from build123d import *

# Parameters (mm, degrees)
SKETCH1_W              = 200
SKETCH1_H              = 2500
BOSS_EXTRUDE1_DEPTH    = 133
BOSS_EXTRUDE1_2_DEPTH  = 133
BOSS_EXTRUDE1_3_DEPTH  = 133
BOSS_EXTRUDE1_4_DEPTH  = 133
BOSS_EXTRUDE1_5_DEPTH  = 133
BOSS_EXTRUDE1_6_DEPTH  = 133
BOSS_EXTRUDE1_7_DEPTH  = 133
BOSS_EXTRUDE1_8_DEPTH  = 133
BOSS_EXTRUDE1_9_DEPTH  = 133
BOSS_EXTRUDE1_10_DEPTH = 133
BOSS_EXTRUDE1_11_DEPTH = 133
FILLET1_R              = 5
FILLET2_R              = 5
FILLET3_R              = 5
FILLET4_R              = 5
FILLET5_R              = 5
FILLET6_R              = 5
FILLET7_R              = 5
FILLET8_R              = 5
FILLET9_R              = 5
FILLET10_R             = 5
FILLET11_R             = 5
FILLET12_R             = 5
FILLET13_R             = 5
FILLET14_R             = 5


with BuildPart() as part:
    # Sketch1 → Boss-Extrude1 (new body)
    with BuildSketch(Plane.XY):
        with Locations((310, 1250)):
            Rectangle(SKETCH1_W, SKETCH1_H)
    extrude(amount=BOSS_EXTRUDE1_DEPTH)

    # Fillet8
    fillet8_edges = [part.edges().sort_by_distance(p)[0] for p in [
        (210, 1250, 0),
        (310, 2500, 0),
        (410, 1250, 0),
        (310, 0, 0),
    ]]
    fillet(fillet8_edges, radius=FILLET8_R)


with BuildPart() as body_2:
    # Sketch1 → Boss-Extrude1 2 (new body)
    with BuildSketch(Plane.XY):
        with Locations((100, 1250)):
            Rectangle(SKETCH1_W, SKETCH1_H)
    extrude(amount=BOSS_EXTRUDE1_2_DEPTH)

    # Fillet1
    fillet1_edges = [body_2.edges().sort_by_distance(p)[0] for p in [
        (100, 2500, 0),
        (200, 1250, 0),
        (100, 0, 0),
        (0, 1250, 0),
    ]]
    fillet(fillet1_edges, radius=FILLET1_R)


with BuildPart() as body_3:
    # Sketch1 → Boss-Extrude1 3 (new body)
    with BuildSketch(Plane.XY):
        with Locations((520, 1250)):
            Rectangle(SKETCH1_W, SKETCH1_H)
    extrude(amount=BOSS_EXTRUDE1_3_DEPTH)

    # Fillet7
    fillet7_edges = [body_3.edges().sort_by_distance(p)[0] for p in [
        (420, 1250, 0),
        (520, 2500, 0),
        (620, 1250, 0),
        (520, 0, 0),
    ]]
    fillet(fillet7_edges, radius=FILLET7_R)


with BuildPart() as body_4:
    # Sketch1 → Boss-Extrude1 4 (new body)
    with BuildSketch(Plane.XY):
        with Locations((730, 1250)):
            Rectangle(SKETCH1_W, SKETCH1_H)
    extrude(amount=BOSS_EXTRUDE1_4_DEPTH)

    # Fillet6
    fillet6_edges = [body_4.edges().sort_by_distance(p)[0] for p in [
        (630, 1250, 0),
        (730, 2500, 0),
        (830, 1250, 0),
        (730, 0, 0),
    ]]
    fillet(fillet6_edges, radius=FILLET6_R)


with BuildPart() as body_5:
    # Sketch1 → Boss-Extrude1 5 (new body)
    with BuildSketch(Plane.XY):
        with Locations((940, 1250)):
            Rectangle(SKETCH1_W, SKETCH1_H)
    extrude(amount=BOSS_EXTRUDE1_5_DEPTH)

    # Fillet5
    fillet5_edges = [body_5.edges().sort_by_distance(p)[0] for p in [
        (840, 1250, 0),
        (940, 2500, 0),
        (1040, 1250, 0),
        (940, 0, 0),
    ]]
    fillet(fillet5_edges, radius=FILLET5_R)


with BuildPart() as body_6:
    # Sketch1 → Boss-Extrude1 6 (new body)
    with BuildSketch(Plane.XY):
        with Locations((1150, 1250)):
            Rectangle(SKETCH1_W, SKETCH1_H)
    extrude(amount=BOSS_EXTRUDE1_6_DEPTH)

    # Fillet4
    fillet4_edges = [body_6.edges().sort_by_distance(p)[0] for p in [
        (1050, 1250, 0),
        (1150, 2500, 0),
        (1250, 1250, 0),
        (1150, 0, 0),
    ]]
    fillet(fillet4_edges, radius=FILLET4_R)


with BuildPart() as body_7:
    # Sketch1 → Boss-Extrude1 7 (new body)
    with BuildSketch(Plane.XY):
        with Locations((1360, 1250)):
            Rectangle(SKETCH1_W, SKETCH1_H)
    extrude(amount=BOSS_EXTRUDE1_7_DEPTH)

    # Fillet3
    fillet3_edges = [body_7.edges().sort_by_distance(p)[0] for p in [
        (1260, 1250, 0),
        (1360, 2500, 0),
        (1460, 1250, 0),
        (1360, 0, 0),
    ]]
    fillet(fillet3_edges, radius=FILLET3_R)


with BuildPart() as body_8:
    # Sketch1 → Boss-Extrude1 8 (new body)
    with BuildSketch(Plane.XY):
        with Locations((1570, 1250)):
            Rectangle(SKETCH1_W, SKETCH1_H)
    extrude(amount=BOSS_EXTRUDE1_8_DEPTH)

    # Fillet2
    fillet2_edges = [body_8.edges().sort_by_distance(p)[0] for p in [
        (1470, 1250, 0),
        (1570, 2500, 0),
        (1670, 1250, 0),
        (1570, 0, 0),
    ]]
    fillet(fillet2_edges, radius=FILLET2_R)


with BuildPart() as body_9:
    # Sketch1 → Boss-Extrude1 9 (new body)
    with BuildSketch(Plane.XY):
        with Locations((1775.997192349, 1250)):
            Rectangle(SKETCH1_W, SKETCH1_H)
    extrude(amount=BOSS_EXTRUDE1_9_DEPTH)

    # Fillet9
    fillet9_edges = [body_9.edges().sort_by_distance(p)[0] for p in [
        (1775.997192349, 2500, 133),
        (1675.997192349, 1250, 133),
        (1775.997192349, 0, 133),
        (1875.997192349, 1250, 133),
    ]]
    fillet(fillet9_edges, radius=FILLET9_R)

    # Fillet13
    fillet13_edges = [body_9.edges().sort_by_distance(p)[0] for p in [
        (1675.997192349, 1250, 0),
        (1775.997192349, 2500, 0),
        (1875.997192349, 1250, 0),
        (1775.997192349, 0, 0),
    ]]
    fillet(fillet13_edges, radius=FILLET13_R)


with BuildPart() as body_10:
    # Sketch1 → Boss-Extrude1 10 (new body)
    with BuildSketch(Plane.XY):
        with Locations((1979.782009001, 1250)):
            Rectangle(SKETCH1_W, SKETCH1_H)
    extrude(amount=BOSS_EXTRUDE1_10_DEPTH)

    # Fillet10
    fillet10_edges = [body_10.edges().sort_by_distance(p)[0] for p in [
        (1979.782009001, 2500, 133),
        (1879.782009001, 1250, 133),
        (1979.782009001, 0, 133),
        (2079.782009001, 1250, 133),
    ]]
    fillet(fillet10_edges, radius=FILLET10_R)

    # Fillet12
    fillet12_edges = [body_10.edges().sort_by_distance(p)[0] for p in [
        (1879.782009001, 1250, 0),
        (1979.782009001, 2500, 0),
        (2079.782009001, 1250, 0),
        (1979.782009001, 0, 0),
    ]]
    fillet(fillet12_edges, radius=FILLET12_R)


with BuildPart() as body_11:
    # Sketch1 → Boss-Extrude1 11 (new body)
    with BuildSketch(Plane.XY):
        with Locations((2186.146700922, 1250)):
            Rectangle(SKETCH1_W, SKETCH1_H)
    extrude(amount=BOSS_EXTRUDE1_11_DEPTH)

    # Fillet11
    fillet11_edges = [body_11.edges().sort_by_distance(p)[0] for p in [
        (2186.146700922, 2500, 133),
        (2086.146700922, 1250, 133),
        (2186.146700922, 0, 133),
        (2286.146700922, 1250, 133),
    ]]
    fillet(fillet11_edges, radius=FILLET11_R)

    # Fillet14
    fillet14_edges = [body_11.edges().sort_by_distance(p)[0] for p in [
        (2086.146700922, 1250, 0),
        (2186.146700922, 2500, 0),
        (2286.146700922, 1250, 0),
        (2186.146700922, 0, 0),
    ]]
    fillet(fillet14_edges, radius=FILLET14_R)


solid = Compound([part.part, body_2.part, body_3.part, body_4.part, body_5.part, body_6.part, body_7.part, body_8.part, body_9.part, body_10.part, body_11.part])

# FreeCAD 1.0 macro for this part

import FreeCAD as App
import Part
import Sketcher


def edges_at(feature, points):
    """Names of the edges that pass closest to the given points."""
    edges = feature.Shape.Edges
    near = lambda p: min(range(len(edges)), key=lambda i: edges[i].distToShape(Part.Vertex(*p))[0])
    return sorted({f"Edge{near(p) + 1}" for p in points})

doc = App.newDocument("Part")
body = doc.addObject("PartDesign::Body", "Body")

sketch1 = body.newObject("Sketcher::SketchObject", "Sketch")
sketch1.AttachmentSupport = (doc.getObject("XY_Plane"), [""])
sketch1.MapMode = "FlatFace"
sketch1.addGeometry(Part.LineSegment(App.Vector(210, 2500, 0), App.Vector(210, 0, 0)), False)
sketch1.addGeometry(Part.LineSegment(App.Vector(210, 0, 0), App.Vector(410, 0, 0)), False)
sketch1.addGeometry(Part.LineSegment(App.Vector(410, 0, 0), App.Vector(410, 2500, 0)), False)
sketch1.addGeometry(Part.LineSegment(App.Vector(410, 2500, 0), App.Vector(210, 2500, 0)), False)
sketch1.addConstraint(Sketcher.Constraint("Coincident", 0, 2, 1, 1))
sketch1.addConstraint(Sketcher.Constraint("Coincident", 1, 2, 2, 1))
sketch1.addConstraint(Sketcher.Constraint("Coincident", 2, 2, 3, 1))
sketch1.addConstraint(Sketcher.Constraint("Coincident", 3, 2, 0, 1))
sketch1.addConstraint(Sketcher.Constraint("Vertical", 0))
sketch1.addConstraint(Sketcher.Constraint("Horizontal", 1))
sketch1.addConstraint(Sketcher.Constraint("Vertical", 2))
sketch1.addConstraint(Sketcher.Constraint("Horizontal", 3))
sketch1.addConstraint(Sketcher.Constraint("PointOnObject", 0, 2, -1))
sketch1.addConstraint(Sketcher.Constraint("DistanceX", 1, 1, 1, 2, 200.0))
sketch1.addConstraint(Sketcher.Constraint("DistanceY", 0, 2, 0, 1, 2500.0))
sketch1.addConstraint(Sketcher.Constraint("DistanceX", -1, 1, 0, 2, 210.0))
pad1 = body.newObject("PartDesign::Pad", "Pad")
pad1.Profile = sketch1
pad1.Length = 133
doc.recompute()

fillet = body.newObject("PartDesign::Fillet", "Fillet")
fillet.Base = (pad1, edges_at(pad1, [
    (210, 1250, 0),
    (310, 2500, 0),
    (410, 1250, 0),
    (310, 0, 0),
]))
fillet.Radius = 5
body2 = doc.addObject("PartDesign::Body", "Body001")

sketch2 = body2.newObject("Sketcher::SketchObject", "Sketch001")
sketch2.AttachmentSupport = (doc.getObject("XY_Plane001"), [""])
sketch2.MapMode = "FlatFace"
sketch2.addGeometry(Part.LineSegment(App.Vector(0, 2500, 0), App.Vector(0, 0, 0)), False)
sketch2.addGeometry(Part.LineSegment(App.Vector(0, 0, 0), App.Vector(200, 0, 0)), False)
sketch2.addGeometry(Part.LineSegment(App.Vector(200, 0, 0), App.Vector(200, 2500, 0)), False)
sketch2.addGeometry(Part.LineSegment(App.Vector(200, 2500, 0), App.Vector(0, 2500, 0)), False)
sketch2.addConstraint(Sketcher.Constraint("Coincident", 0, 2, 1, 1))
sketch2.addConstraint(Sketcher.Constraint("Coincident", 1, 2, 2, 1))
sketch2.addConstraint(Sketcher.Constraint("Coincident", 2, 2, 3, 1))
sketch2.addConstraint(Sketcher.Constraint("Coincident", 3, 2, 0, 1))
sketch2.addConstraint(Sketcher.Constraint("Vertical", 0))
sketch2.addConstraint(Sketcher.Constraint("Horizontal", 1))
sketch2.addConstraint(Sketcher.Constraint("Vertical", 2))
sketch2.addConstraint(Sketcher.Constraint("Horizontal", 3))
sketch2.addConstraint(Sketcher.Constraint("Coincident", 0, 2, -1, 1))
sketch2.addConstraint(Sketcher.Constraint("DistanceX", 1, 1, 1, 2, 200.0))
sketch2.addConstraint(Sketcher.Constraint("DistanceY", 0, 2, 0, 1, 2500.0))
pad2 = body2.newObject("PartDesign::Pad", "Pad001")
pad2.Profile = sketch2
pad2.Length = 133
doc.recompute()

fillet2 = body2.newObject("PartDesign::Fillet", "Fillet001")
fillet2.Base = (pad2, edges_at(pad2, [
    (100, 2500, 0),
    (200, 1250, 0),
    (100, 0, 0),
    (0, 1250, 0),
]))
fillet2.Radius = 5
body3 = doc.addObject("PartDesign::Body", "Body002")

sketch3 = body3.newObject("Sketcher::SketchObject", "Sketch002")
sketch3.AttachmentSupport = (doc.getObject("XY_Plane002"), [""])
sketch3.MapMode = "FlatFace"
sketch3.addGeometry(Part.LineSegment(App.Vector(420, 2500, 0), App.Vector(420, 0, 0)), False)
sketch3.addGeometry(Part.LineSegment(App.Vector(420, 0, 0), App.Vector(620, 0, 0)), False)
sketch3.addGeometry(Part.LineSegment(App.Vector(620, 0, 0), App.Vector(620, 2500, 0)), False)
sketch3.addGeometry(Part.LineSegment(App.Vector(620, 2500, 0), App.Vector(420, 2500, 0)), False)
sketch3.addConstraint(Sketcher.Constraint("Coincident", 0, 2, 1, 1))
sketch3.addConstraint(Sketcher.Constraint("Coincident", 1, 2, 2, 1))
sketch3.addConstraint(Sketcher.Constraint("Coincident", 2, 2, 3, 1))
sketch3.addConstraint(Sketcher.Constraint("Coincident", 3, 2, 0, 1))
sketch3.addConstraint(Sketcher.Constraint("Vertical", 0))
sketch3.addConstraint(Sketcher.Constraint("Horizontal", 1))
sketch3.addConstraint(Sketcher.Constraint("Vertical", 2))
sketch3.addConstraint(Sketcher.Constraint("Horizontal", 3))
sketch3.addConstraint(Sketcher.Constraint("PointOnObject", 0, 2, -1))
sketch3.addConstraint(Sketcher.Constraint("DistanceX", 1, 1, 1, 2, 200.0))
sketch3.addConstraint(Sketcher.Constraint("DistanceY", 0, 2, 0, 1, 2500.0))
sketch3.addConstraint(Sketcher.Constraint("DistanceX", -1, 1, 0, 2, 420.0))
pad3 = body3.newObject("PartDesign::Pad", "Pad002")
pad3.Profile = sketch3
pad3.Length = 133
doc.recompute()

fillet3 = body3.newObject("PartDesign::Fillet", "Fillet002")
fillet3.Base = (pad3, edges_at(pad3, [
    (420, 1250, 0),
    (520, 2500, 0),
    (620, 1250, 0),
    (520, 0, 0),
]))
fillet3.Radius = 5
body4 = doc.addObject("PartDesign::Body", "Body003")

sketch4 = body4.newObject("Sketcher::SketchObject", "Sketch003")
sketch4.AttachmentSupport = (doc.getObject("XY_Plane003"), [""])
sketch4.MapMode = "FlatFace"
sketch4.addGeometry(Part.LineSegment(App.Vector(630, 2500, 0), App.Vector(630, 0, 0)), False)
sketch4.addGeometry(Part.LineSegment(App.Vector(630, 0, 0), App.Vector(830, 0, 0)), False)
sketch4.addGeometry(Part.LineSegment(App.Vector(830, 0, 0), App.Vector(830, 2500, 0)), False)
sketch4.addGeometry(Part.LineSegment(App.Vector(830, 2500, 0), App.Vector(630, 2500, 0)), False)
sketch4.addConstraint(Sketcher.Constraint("Coincident", 0, 2, 1, 1))
sketch4.addConstraint(Sketcher.Constraint("Coincident", 1, 2, 2, 1))
sketch4.addConstraint(Sketcher.Constraint("Coincident", 2, 2, 3, 1))
sketch4.addConstraint(Sketcher.Constraint("Coincident", 3, 2, 0, 1))
sketch4.addConstraint(Sketcher.Constraint("Vertical", 0))
sketch4.addConstraint(Sketcher.Constraint("Horizontal", 1))
sketch4.addConstraint(Sketcher.Constraint("Vertical", 2))
sketch4.addConstraint(Sketcher.Constraint("Horizontal", 3))
sketch4.addConstraint(Sketcher.Constraint("PointOnObject", 0, 2, -1))
sketch4.addConstraint(Sketcher.Constraint("DistanceX", 1, 1, 1, 2, 200.0))
sketch4.addConstraint(Sketcher.Constraint("DistanceY", 0, 2, 0, 1, 2500.0))
sketch4.addConstraint(Sketcher.Constraint("DistanceX", -1, 1, 0, 2, 630.0))
pad4 = body4.newObject("PartDesign::Pad", "Pad003")
pad4.Profile = sketch4
pad4.Length = 133
doc.recompute()

fillet4 = body4.newObject("PartDesign::Fillet", "Fillet003")
fillet4.Base = (pad4, edges_at(pad4, [
    (630, 1250, 0),
    (730, 2500, 0),
    (830, 1250, 0),
    (730, 0, 0),
]))
fillet4.Radius = 5
body5 = doc.addObject("PartDesign::Body", "Body004")

sketch5 = body5.newObject("Sketcher::SketchObject", "Sketch004")
sketch5.AttachmentSupport = (doc.getObject("XY_Plane004"), [""])
sketch5.MapMode = "FlatFace"
sketch5.addGeometry(Part.LineSegment(App.Vector(840, 2500, 0), App.Vector(840, 0, 0)), False)
sketch5.addGeometry(Part.LineSegment(App.Vector(840, 0, 0), App.Vector(1040, 0, 0)), False)
sketch5.addGeometry(Part.LineSegment(App.Vector(1040, 0, 0), App.Vector(1040, 2500, 0)), False)
sketch5.addGeometry(Part.LineSegment(App.Vector(1040, 2500, 0), App.Vector(840, 2500, 0)), False)
sketch5.addConstraint(Sketcher.Constraint("Coincident", 0, 2, 1, 1))
sketch5.addConstraint(Sketcher.Constraint("Coincident", 1, 2, 2, 1))
sketch5.addConstraint(Sketcher.Constraint("Coincident", 2, 2, 3, 1))
sketch5.addConstraint(Sketcher.Constraint("Coincident", 3, 2, 0, 1))
sketch5.addConstraint(Sketcher.Constraint("Vertical", 0))
sketch5.addConstraint(Sketcher.Constraint("Horizontal", 1))
sketch5.addConstraint(Sketcher.Constraint("Vertical", 2))
sketch5.addConstraint(Sketcher.Constraint("Horizontal", 3))
sketch5.addConstraint(Sketcher.Constraint("PointOnObject", 0, 2, -1))
sketch5.addConstraint(Sketcher.Constraint("DistanceX", 1, 1, 1, 2, 200.0))
sketch5.addConstraint(Sketcher.Constraint("DistanceY", 0, 2, 0, 1, 2500.0))
sketch5.addConstraint(Sketcher.Constraint("DistanceX", -1, 1, 0, 2, 840.0))
pad5 = body5.newObject("PartDesign::Pad", "Pad004")
pad5.Profile = sketch5
pad5.Length = 133
doc.recompute()

fillet5 = body5.newObject("PartDesign::Fillet", "Fillet004")
fillet5.Base = (pad5, edges_at(pad5, [
    (840, 1250, 0),
    (940, 2500, 0),
    (1040, 1250, 0),
    (940, 0, 0),
]))
fillet5.Radius = 5
body6 = doc.addObject("PartDesign::Body", "Body005")

sketch6 = body6.newObject("Sketcher::SketchObject", "Sketch005")
sketch6.AttachmentSupport = (doc.getObject("XY_Plane005"), [""])
sketch6.MapMode = "FlatFace"
sketch6.addGeometry(Part.LineSegment(App.Vector(1050, 2500, 0), App.Vector(1050, 0, 0)), False)
sketch6.addGeometry(Part.LineSegment(App.Vector(1050, 0, 0), App.Vector(1250, 0, 0)), False)
sketch6.addGeometry(Part.LineSegment(App.Vector(1250, 0, 0), App.Vector(1250, 2500, 0)), False)
sketch6.addGeometry(Part.LineSegment(App.Vector(1250, 2500, 0), App.Vector(1050, 2500, 0)), False)
sketch6.addConstraint(Sketcher.Constraint("Coincident", 0, 2, 1, 1))
sketch6.addConstraint(Sketcher.Constraint("Coincident", 1, 2, 2, 1))
sketch6.addConstraint(Sketcher.Constraint("Coincident", 2, 2, 3, 1))
sketch6.addConstraint(Sketcher.Constraint("Coincident", 3, 2, 0, 1))
sketch6.addConstraint(Sketcher.Constraint("Vertical", 0))
sketch6.addConstraint(Sketcher.Constraint("Horizontal", 1))
sketch6.addConstraint(Sketcher.Constraint("Vertical", 2))
sketch6.addConstraint(Sketcher.Constraint("Horizontal", 3))
sketch6.addConstraint(Sketcher.Constraint("PointOnObject", 0, 2, -1))
sketch6.addConstraint(Sketcher.Constraint("DistanceX", 1, 1, 1, 2, 200.0))
sketch6.addConstraint(Sketcher.Constraint("DistanceY", 0, 2, 0, 1, 2500.0))
sketch6.addConstraint(Sketcher.Constraint("DistanceX", -1, 1, 0, 2, 1050.0))
pad6 = body6.newObject("PartDesign::Pad", "Pad005")
pad6.Profile = sketch6
pad6.Length = 133
doc.recompute()

fillet6 = body6.newObject("PartDesign::Fillet", "Fillet005")
fillet6.Base = (pad6, edges_at(pad6, [
    (1050, 1250, 0),
    (1150, 2500, 0),
    (1250, 1250, 0),
    (1150, 0, 0),
]))
fillet6.Radius = 5
body7 = doc.addObject("PartDesign::Body", "Body006")

sketch7 = body7.newObject("Sketcher::SketchObject", "Sketch006")
sketch7.AttachmentSupport = (doc.getObject("XY_Plane006"), [""])
sketch7.MapMode = "FlatFace"
sketch7.addGeometry(Part.LineSegment(App.Vector(1260, 2500, 0), App.Vector(1260, 0, 0)), False)
sketch7.addGeometry(Part.LineSegment(App.Vector(1260, 0, 0), App.Vector(1460, 0, 0)), False)
sketch7.addGeometry(Part.LineSegment(App.Vector(1460, 0, 0), App.Vector(1460, 2500, 0)), False)
sketch7.addGeometry(Part.LineSegment(App.Vector(1460, 2500, 0), App.Vector(1260, 2500, 0)), False)
sketch7.addConstraint(Sketcher.Constraint("Coincident", 0, 2, 1, 1))
sketch7.addConstraint(Sketcher.Constraint("Coincident", 1, 2, 2, 1))
sketch7.addConstraint(Sketcher.Constraint("Coincident", 2, 2, 3, 1))
sketch7.addConstraint(Sketcher.Constraint("Coincident", 3, 2, 0, 1))
sketch7.addConstraint(Sketcher.Constraint("Vertical", 0))
sketch7.addConstraint(Sketcher.Constraint("Horizontal", 1))
sketch7.addConstraint(Sketcher.Constraint("Vertical", 2))
sketch7.addConstraint(Sketcher.Constraint("Horizontal", 3))
sketch7.addConstraint(Sketcher.Constraint("PointOnObject", 0, 2, -1))
sketch7.addConstraint(Sketcher.Constraint("DistanceX", 1, 1, 1, 2, 200.0))
sketch7.addConstraint(Sketcher.Constraint("DistanceY", 0, 2, 0, 1, 2500.0))
sketch7.addConstraint(Sketcher.Constraint("DistanceX", -1, 1, 0, 2, 1260.0))
pad7 = body7.newObject("PartDesign::Pad", "Pad006")
pad7.Profile = sketch7
pad7.Length = 133
doc.recompute()

fillet7 = body7.newObject("PartDesign::Fillet", "Fillet006")
fillet7.Base = (pad7, edges_at(pad7, [
    (1260, 1250, 0),
    (1360, 2500, 0),
    (1460, 1250, 0),
    (1360, 0, 0),
]))
fillet7.Radius = 5
body8 = doc.addObject("PartDesign::Body", "Body007")

sketch8 = body8.newObject("Sketcher::SketchObject", "Sketch007")
sketch8.AttachmentSupport = (doc.getObject("XY_Plane007"), [""])
sketch8.MapMode = "FlatFace"
sketch8.addGeometry(Part.LineSegment(App.Vector(1470, 2500, 0), App.Vector(1470, 0, 0)), False)
sketch8.addGeometry(Part.LineSegment(App.Vector(1470, 0, 0), App.Vector(1670, 0, 0)), False)
sketch8.addGeometry(Part.LineSegment(App.Vector(1670, 0, 0), App.Vector(1670, 2500, 0)), False)
sketch8.addGeometry(Part.LineSegment(App.Vector(1670, 2500, 0), App.Vector(1470, 2500, 0)), False)
sketch8.addConstraint(Sketcher.Constraint("Coincident", 0, 2, 1, 1))
sketch8.addConstraint(Sketcher.Constraint("Coincident", 1, 2, 2, 1))
sketch8.addConstraint(Sketcher.Constraint("Coincident", 2, 2, 3, 1))
sketch8.addConstraint(Sketcher.Constraint("Coincident", 3, 2, 0, 1))
sketch8.addConstraint(Sketcher.Constraint("Vertical", 0))
sketch8.addConstraint(Sketcher.Constraint("Horizontal", 1))
sketch8.addConstraint(Sketcher.Constraint("Vertical", 2))
sketch8.addConstraint(Sketcher.Constraint("Horizontal", 3))
sketch8.addConstraint(Sketcher.Constraint("PointOnObject", 0, 2, -1))
sketch8.addConstraint(Sketcher.Constraint("DistanceX", 1, 1, 1, 2, 200.0))
sketch8.addConstraint(Sketcher.Constraint("DistanceY", 0, 2, 0, 1, 2500.0))
sketch8.addConstraint(Sketcher.Constraint("DistanceX", -1, 1, 0, 2, 1470.0))
pad8 = body8.newObject("PartDesign::Pad", "Pad007")
pad8.Profile = sketch8
pad8.Length = 133
doc.recompute()

fillet8 = body8.newObject("PartDesign::Fillet", "Fillet007")
fillet8.Base = (pad8, edges_at(pad8, [
    (1470, 1250, 0),
    (1570, 2500, 0),
    (1670, 1250, 0),
    (1570, 0, 0),
]))
fillet8.Radius = 5
body9 = doc.addObject("PartDesign::Body", "Body008")

sketch9 = body9.newObject("Sketcher::SketchObject", "Sketch008")
sketch9.AttachmentSupport = (doc.getObject("XY_Plane008"), [""])
sketch9.MapMode = "FlatFace"
sketch9.addGeometry(Part.LineSegment(App.Vector(1675.997192, 2500, 0), App.Vector(1675.997192, 0, 0)), False)
sketch9.addGeometry(Part.LineSegment(App.Vector(1675.997192, 0, 0), App.Vector(1875.997192, 0, 0)), False)
sketch9.addGeometry(Part.LineSegment(App.Vector(1875.997192, 0, 0), App.Vector(1875.997192, 2500, 0)), False)
sketch9.addGeometry(Part.LineSegment(App.Vector(1875.997192, 2500, 0), App.Vector(1675.997192, 2500, 0)), False)
sketch9.addConstraint(Sketcher.Constraint("Coincident", 0, 2, 1, 1))
sketch9.addConstraint(Sketcher.Constraint("Coincident", 1, 2, 2, 1))
sketch9.addConstraint(Sketcher.Constraint("Coincident", 2, 2, 3, 1))
sketch9.addConstraint(Sketcher.Constraint("Coincident", 3, 2, 0, 1))
sketch9.addConstraint(Sketcher.Constraint("Vertical", 0))
sketch9.addConstraint(Sketcher.Constraint("Horizontal", 1))
sketch9.addConstraint(Sketcher.Constraint("Vertical", 2))
sketch9.addConstraint(Sketcher.Constraint("Horizontal", 3))
sketch9.addConstraint(Sketcher.Constraint("PointOnObject", 0, 2, -1))
sketch9.addConstraint(Sketcher.Constraint("DistanceX", 1, 1, 1, 2, 200.0))
sketch9.addConstraint(Sketcher.Constraint("DistanceY", 0, 2, 0, 1, 2500.0))
sketch9.addConstraint(Sketcher.Constraint("DistanceX", -1, 1, 0, 2, 1675.997192))
pad9 = body9.newObject("PartDesign::Pad", "Pad008")
pad9.Profile = sketch9
pad9.Length = 133
doc.recompute()

fillet9 = body9.newObject("PartDesign::Fillet", "Fillet008")
fillet9.Base = (pad9, edges_at(pad9, [
    (1775.997, 2500, 133),
    (1675.997, 1250, 133),
    (1775.997, 0, 133),
    (1875.997, 1250, 133),
]))
fillet9.Radius = 5
doc.recompute()

fillet10 = body9.newObject("PartDesign::Fillet", "Fillet009")
fillet10.Base = (fillet9, edges_at(fillet9, [
    (1675.997, 1250, 0),
    (1775.997, 2500, 0),
    (1875.997, 1250, 0),
    (1775.997, 0, 0),
]))
fillet10.Radius = 5
body10 = doc.addObject("PartDesign::Body", "Body009")

sketch10 = body10.newObject("Sketcher::SketchObject", "Sketch009")
sketch10.AttachmentSupport = (doc.getObject("XY_Plane009"), [""])
sketch10.MapMode = "FlatFace"
sketch10.addGeometry(Part.LineSegment(App.Vector(1880, 2500, 0), App.Vector(1880, 0, 0)), False)
sketch10.addGeometry(Part.LineSegment(App.Vector(1880, 0, 0), App.Vector(2080, 0, 0)), False)
sketch10.addGeometry(Part.LineSegment(App.Vector(2080, 0, 0), App.Vector(2080, 2500, 0)), False)
sketch10.addGeometry(Part.LineSegment(App.Vector(2080, 2500, 0), App.Vector(1880, 2500, 0)), False)
sketch10.addConstraint(Sketcher.Constraint("Coincident", 0, 2, 1, 1))
sketch10.addConstraint(Sketcher.Constraint("Coincident", 1, 2, 2, 1))
sketch10.addConstraint(Sketcher.Constraint("Coincident", 2, 2, 3, 1))
sketch10.addConstraint(Sketcher.Constraint("Coincident", 3, 2, 0, 1))
sketch10.addConstraint(Sketcher.Constraint("Vertical", 0))
sketch10.addConstraint(Sketcher.Constraint("Horizontal", 1))
sketch10.addConstraint(Sketcher.Constraint("Vertical", 2))
sketch10.addConstraint(Sketcher.Constraint("Horizontal", 3))
sketch10.addConstraint(Sketcher.Constraint("PointOnObject", 0, 2, -1))
sketch10.addConstraint(Sketcher.Constraint("DistanceX", 1, 1, 1, 2, 200.0))
sketch10.addConstraint(Sketcher.Constraint("DistanceY", 0, 2, 0, 1, 2500.0))
sketch10.addConstraint(Sketcher.Constraint("DistanceX", -1, 1, 0, 2, 1879.782009))
pad10 = body10.newObject("PartDesign::Pad", "Pad009")
pad10.Profile = sketch10
pad10.Length = 133
doc.recompute()

fillet11 = body10.newObject("PartDesign::Fillet", "Fillet010")
fillet11.Base = (pad10, edges_at(pad10, [
    (1979.782, 2500, 133),
    (1879.782, 1250, 133),
    (1979.782, 0, 133),
    (2079.782, 1250, 133),
]))
fillet11.Radius = 5
doc.recompute()

fillet12 = body10.newObject("PartDesign::Fillet", "Fillet011")
fillet12.Base = (fillet11, edges_at(fillet11, [
    (1879.782, 1250, 0),
    (1979.782, 2500, 0),
    (2079.782, 1250, 0),
    (1979.782, 0, 0),
]))
fillet12.Radius = 5
body11 = doc.addObject("PartDesign::Body", "Body010")

sketch11 = body11.newObject("Sketcher::SketchObject", "Sketch010")
sketch11.AttachmentSupport = (doc.getObject("XY_Plane010"), [""])
sketch11.MapMode = "FlatFace"
sketch11.addGeometry(Part.LineSegment(App.Vector(2086, 2500, 0), App.Vector(2086, 0, 0)), False)
sketch11.addGeometry(Part.LineSegment(App.Vector(2086, 0, 0), App.Vector(2286, 0, 0)), False)
sketch11.addGeometry(Part.LineSegment(App.Vector(2286, 0, 0), App.Vector(2286, 2500, 0)), False)
sketch11.addGeometry(Part.LineSegment(App.Vector(2286, 2500, 0), App.Vector(2086, 2500, 0)), False)
sketch11.addConstraint(Sketcher.Constraint("Coincident", 0, 2, 1, 1))
sketch11.addConstraint(Sketcher.Constraint("Coincident", 1, 2, 2, 1))
sketch11.addConstraint(Sketcher.Constraint("Coincident", 2, 2, 3, 1))
sketch11.addConstraint(Sketcher.Constraint("Coincident", 3, 2, 0, 1))
sketch11.addConstraint(Sketcher.Constraint("Vertical", 0))
sketch11.addConstraint(Sketcher.Constraint("Horizontal", 1))
sketch11.addConstraint(Sketcher.Constraint("Vertical", 2))
sketch11.addConstraint(Sketcher.Constraint("Horizontal", 3))
sketch11.addConstraint(Sketcher.Constraint("PointOnObject", 0, 2, -1))
sketch11.addConstraint(Sketcher.Constraint("DistanceX", 1, 1, 1, 2, 200.0))
sketch11.addConstraint(Sketcher.Constraint("DistanceY", 0, 2, 0, 1, 2500.0))
sketch11.addConstraint(Sketcher.Constraint("DistanceX", -1, 1, 0, 2, 2086.146701))
pad11 = body11.newObject("PartDesign::Pad", "Pad010")
pad11.Profile = sketch11
pad11.Length = 133
doc.recompute()

fillet13 = body11.newObject("PartDesign::Fillet", "Fillet012")
fillet13.Base = (pad11, edges_at(pad11, [
    (2186.147, 2500, 133),
    (2086.147, 1250, 133),
    (2186.147, 0, 133),
    (2286.147, 1250, 133),
]))
fillet13.Radius = 5
doc.recompute()

fillet14 = body11.newObject("PartDesign::Fillet", "Fillet013")
fillet14.Base = (fillet13, edges_at(fillet13, [
    (2086.147, 1250, 0),
    (2186.147, 2500, 0),
    (2286.147, 1250, 0),
    (2186.147, 0, 0),
]))
fillet14.Radius = 5

doc.recompute()
